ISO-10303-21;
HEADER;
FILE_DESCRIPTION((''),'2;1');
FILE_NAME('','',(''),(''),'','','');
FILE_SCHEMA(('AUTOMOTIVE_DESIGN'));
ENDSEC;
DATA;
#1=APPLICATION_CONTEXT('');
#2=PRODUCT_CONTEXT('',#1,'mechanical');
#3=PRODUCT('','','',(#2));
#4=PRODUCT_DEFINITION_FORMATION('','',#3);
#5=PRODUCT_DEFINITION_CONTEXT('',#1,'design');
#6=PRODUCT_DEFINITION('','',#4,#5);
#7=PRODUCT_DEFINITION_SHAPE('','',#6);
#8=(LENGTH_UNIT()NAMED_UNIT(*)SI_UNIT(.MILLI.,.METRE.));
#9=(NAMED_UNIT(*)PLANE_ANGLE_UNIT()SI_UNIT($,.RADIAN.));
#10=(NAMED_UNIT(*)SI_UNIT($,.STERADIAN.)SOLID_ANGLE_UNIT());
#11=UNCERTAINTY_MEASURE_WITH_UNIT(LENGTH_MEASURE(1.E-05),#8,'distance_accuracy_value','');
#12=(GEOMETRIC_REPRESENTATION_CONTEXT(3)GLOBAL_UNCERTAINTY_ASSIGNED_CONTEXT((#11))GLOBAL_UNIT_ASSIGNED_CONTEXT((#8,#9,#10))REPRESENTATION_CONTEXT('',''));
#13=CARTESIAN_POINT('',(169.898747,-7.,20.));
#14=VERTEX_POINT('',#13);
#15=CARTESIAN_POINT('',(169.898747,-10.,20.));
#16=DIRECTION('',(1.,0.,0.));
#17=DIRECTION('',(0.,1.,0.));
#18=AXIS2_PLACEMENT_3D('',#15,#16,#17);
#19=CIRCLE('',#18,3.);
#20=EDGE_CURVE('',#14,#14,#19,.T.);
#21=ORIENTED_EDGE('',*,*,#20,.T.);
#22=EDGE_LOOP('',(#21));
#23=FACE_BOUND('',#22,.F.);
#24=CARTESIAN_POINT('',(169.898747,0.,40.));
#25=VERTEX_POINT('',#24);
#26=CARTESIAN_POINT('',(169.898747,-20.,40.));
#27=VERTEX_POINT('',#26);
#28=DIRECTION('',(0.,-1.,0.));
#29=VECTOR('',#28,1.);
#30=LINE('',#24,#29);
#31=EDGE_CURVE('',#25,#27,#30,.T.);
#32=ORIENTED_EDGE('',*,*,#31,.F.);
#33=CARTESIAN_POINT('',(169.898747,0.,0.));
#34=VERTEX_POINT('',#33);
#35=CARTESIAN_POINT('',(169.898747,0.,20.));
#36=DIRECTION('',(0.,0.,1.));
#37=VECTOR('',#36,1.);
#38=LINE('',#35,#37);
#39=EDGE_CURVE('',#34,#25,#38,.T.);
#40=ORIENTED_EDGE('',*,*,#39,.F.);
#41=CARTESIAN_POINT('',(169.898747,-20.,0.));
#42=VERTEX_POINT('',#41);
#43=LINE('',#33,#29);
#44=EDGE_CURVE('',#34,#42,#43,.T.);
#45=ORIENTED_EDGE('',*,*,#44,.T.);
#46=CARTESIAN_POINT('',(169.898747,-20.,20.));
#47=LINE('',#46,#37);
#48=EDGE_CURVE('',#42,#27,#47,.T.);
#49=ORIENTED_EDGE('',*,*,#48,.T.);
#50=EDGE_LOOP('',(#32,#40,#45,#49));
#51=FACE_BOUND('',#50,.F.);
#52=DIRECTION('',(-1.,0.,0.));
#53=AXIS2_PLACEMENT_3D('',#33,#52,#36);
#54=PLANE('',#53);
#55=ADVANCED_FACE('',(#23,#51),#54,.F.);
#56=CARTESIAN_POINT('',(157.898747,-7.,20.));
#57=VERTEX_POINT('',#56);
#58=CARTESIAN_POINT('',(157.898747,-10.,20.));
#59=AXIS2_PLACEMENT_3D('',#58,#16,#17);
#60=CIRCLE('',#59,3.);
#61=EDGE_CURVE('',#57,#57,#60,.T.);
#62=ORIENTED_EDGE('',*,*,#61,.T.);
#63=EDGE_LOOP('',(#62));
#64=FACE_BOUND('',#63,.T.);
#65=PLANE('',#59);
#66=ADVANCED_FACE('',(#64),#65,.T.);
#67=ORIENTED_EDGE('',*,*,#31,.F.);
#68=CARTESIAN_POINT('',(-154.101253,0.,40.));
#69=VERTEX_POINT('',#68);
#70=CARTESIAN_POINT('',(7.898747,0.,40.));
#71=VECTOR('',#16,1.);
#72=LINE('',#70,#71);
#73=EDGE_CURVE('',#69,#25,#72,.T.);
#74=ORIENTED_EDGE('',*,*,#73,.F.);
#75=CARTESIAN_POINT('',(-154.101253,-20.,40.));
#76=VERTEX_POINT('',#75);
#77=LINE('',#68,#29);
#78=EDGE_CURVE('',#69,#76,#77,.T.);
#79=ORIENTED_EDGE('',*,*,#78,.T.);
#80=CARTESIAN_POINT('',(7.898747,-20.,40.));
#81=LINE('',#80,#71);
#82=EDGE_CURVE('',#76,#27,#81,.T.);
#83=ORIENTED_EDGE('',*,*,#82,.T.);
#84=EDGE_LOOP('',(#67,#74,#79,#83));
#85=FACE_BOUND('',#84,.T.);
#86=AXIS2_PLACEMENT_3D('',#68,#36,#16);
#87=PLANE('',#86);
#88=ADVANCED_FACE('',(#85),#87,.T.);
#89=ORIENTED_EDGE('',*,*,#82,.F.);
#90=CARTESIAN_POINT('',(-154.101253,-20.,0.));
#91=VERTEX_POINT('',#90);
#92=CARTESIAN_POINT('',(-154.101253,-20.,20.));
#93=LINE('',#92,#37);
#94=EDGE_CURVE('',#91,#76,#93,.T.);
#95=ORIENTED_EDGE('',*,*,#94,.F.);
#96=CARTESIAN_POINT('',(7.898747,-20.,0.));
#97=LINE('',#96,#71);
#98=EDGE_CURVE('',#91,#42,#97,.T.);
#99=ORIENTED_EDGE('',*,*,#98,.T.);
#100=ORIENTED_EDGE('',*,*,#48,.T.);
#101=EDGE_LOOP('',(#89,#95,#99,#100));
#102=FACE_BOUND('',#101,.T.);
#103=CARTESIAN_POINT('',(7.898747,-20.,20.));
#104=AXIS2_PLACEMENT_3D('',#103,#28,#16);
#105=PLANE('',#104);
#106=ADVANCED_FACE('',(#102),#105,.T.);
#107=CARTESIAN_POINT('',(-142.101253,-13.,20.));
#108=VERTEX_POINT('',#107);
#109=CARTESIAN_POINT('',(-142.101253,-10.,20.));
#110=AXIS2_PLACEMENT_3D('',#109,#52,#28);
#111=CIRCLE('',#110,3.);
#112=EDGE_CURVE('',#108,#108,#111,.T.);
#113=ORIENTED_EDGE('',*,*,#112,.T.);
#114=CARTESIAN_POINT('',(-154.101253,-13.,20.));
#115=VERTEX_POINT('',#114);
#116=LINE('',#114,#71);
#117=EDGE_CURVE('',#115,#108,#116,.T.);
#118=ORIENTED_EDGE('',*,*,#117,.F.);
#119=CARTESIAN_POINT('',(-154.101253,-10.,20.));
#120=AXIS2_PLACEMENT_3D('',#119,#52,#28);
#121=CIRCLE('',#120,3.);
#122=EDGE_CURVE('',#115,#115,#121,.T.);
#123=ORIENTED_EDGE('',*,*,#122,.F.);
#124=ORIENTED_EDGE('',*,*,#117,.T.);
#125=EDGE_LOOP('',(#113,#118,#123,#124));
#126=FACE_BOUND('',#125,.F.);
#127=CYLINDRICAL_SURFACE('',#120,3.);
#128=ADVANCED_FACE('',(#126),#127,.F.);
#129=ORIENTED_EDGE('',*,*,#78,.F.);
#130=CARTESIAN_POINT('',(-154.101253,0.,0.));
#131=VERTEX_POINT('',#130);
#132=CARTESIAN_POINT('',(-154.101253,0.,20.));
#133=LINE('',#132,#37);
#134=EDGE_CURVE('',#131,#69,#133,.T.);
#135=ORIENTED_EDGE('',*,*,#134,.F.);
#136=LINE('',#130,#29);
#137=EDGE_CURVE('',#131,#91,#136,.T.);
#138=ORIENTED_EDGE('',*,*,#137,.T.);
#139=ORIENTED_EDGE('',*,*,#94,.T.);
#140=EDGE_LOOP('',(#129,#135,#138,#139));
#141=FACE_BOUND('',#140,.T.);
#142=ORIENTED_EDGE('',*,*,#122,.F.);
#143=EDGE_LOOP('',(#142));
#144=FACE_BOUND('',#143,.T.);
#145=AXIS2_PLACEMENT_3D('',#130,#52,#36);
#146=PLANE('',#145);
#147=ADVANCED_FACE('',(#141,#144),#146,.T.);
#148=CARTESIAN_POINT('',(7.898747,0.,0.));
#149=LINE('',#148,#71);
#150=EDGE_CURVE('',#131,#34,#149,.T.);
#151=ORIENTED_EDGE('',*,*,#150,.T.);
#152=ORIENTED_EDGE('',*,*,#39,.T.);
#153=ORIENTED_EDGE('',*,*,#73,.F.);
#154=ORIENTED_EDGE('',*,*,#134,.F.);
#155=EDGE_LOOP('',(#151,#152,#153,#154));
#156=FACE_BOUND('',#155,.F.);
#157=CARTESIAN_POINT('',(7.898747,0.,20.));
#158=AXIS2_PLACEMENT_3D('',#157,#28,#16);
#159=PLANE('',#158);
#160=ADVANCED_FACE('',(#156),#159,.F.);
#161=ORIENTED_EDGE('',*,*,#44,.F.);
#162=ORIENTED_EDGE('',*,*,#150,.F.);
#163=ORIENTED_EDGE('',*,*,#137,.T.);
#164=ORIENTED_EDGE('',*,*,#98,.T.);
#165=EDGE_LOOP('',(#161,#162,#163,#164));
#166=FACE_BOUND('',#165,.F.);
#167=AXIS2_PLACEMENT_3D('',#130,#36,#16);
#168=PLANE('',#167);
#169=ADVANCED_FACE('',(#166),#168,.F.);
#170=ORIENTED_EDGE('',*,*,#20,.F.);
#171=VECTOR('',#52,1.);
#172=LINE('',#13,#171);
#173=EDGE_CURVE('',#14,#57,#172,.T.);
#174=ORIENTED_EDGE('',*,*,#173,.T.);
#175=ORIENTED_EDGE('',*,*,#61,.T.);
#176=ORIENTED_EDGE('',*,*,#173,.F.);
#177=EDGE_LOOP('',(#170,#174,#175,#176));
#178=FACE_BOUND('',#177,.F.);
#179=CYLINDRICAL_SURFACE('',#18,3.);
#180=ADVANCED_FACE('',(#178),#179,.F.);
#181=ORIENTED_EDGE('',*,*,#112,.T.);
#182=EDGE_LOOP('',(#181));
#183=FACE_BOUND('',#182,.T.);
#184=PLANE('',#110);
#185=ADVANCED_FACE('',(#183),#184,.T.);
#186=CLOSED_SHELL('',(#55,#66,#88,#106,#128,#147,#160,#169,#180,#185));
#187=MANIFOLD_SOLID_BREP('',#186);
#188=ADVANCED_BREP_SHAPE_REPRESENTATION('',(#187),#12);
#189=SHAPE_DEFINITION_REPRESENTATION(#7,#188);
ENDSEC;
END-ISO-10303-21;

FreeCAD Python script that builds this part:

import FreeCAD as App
import Part
import Sketcher

V = App.Vector


def add_polygon(sketch, points):
    """Adds a closed chain of lines whose ends are joined by coincident constraints."""
    first, n = sketch.GeometryCount, len(points)
    for a, b in zip(points, points[1:] + points[:1]):
        sketch.addGeometry(Part.LineSegment(App.Vector(*a, 0), App.Vector(*b, 0)), False)
    for i in range(n):
        sketch.addConstraint(Sketcher.Constraint("Coincident", first + i, 2, first + (i + 1) % n, 1))

doc = App.newDocument("Part")
params = doc.addObject("Spreadsheet::Sheet", "Params")
for row, (alias, value) in enumerate([
    ("sketch1_width", "324 mm"),
    ("sketch1_height", "40 mm"),
    ("pad1_length", "20 mm"),
    ("sketch2_diameter", "6 mm"),
    ("pocket1_length", "12 mm"),
    ("sketch3_diameter", "6 mm"),
    ("pocket2_length", "12 mm"),
], start=1):
    params.set(f"A{row}", alias)
    params.set(f"B{row}", "=" + value)
    params.setAlias(f"B{row}", alias)

body = doc.addObject("PartDesign::Body", "Body")

# Sketch on XZ plane
sketch1 = body.newObject("Sketcher::SketchObject", "Sketch")
sketch1.AttachmentSupport = (doc.getObject("XZ_Plane"), [""])
sketch1.MapMode = "FlatFace"
add_polygon(sketch1, [(-154, 40), (-154, 0), (170, 0), (170, 40)])  # lines 0-3
sketch1.addConstraint(Sketcher.Constraint("Vertical", 0))
sketch1.addConstraint(Sketcher.Constraint("Horizontal", 1))
sketch1.addConstraint(Sketcher.Constraint("Vertical", 2))
sketch1.addConstraint(Sketcher.Constraint("Horizontal", 3))
sketch1.addConstraint(Sketcher.Constraint("PointOnObject", 0, 2, -1))
sketch1.addConstraint(Sketcher.Constraint("DistanceX", 1, 1, 1, 2, 324.0))
sketch1.addConstraint(Sketcher.Constraint("DistanceY", 0, 2, 0, 1, 40.0))
sketch1.addConstraint(Sketcher.Constraint("DistanceX", 0, 2, -1, 1, 154.101253))
sketch1.setExpression("Constraints[9]", "Params.sketch1_width")
sketch1.setExpression("Constraints[10]", "Params.sketch1_height")
pad1 = body.newObject("PartDesign::Pad", "Pad")
pad1.Profile = sketch1
pad1.setExpression("Length", "Params.pad1_length")

# Sketch on YZ plane
sketch2 = body.newObject("Sketcher::SketchObject", "Sketch001")
sketch2.AttachmentSupport = (doc.getObject("YZ_Plane"), [""])
sketch2.MapMode = "FlatFace"
sketch2.AttachmentOffset = App.Placement(V(0, 0, 169.898747), App.Rotation())
sketch2.addGeometry(Part.Circle(V(-10, 20, 0), V(0, 0, 1), 3), False)
sketch2.addConstraint(Sketcher.Constraint("Diameter", 0, 6.0))
sketch2.addConstraint(Sketcher.Constraint("DistanceX", 0, 3, -1, 1, 10.0))
sketch2.addConstraint(Sketcher.Constraint("DistanceY", -1, 1, 0, 3, 20.0))
sketch2.setExpression("Constraints[0]", "Params.sketch2_diameter")
pocket1 = body.newObject("PartDesign::Pocket", "Pocket")
pocket1.Profile = sketch2
pocket1.setExpression("Length", "Params.pocket1_length")

# Sketch on YZ plane
sketch3 = body.newObject("Sketcher::SketchObject", "Sketch002")
sketch3.AttachmentSupport = (doc.getObject("YZ_Plane"), [""])
sketch3.MapMode = "FlatFace"
sketch3.AttachmentOffset = App.Placement(V(0, 0, -154.101253), App.Rotation())
sketch3.addGeometry(Part.Circle(V(-10, 20, 0), V(0, 0, 1), 3), False)
sketch3.addConstraint(Sketcher.Constraint("Diameter", 0, 6.0))
sketch3.addConstraint(Sketcher.Constraint("DistanceX", 0, 3, -1, 1, 10.0))
sketch3.addConstraint(Sketcher.Constraint("DistanceY", -1, 1, 0, 3, 20.0))
sketch3.setExpression("Constraints[0]", "Params.sketch3_diameter")
pocket2 = body.newObject("PartDesign::Pocket", "Pocket001")
pocket2.Profile = sketch3
pocket2.setExpression("Length", "Params.pocket2_length")
pocket2.Reversed = True

doc.recompute()
